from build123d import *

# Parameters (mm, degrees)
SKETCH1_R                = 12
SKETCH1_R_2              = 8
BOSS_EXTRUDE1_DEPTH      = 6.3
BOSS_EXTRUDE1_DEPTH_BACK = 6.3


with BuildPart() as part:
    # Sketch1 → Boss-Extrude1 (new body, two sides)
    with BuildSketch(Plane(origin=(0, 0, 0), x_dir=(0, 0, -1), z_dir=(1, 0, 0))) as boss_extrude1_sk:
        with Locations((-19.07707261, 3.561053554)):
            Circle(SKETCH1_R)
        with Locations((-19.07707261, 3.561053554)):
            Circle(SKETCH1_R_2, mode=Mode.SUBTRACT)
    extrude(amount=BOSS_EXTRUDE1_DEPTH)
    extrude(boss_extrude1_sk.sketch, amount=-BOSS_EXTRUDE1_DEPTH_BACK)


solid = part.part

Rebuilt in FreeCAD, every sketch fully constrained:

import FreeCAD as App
import Part
import Sketcher
from FreeCAD import Vector

doc = App.newDocument("Part")
body = doc.addObject("PartDesign::Body", "Body")

sketch1 = doc.addObject("Sketcher::SketchObject", "Sketch")
body.addObject(sketch1)
sketch1.AttachmentSupport = (doc.YZ_Plane, [""])
sketch1.MapMode = "FlatFace"
sketch1.addGeometry([
    Part.Circle(Vector(4, 19, 0), Vector(0, 0, 1), 12),
    Part.Circle(Vector(4, 19, 0), Vector(0, 0, 1), 8),
], False)
sketch1.addConstraint([
    Sketcher.Constraint("Coincident", 1, 3, 0, 3),
    Sketcher.Constraint("Diameter", 0, 24.0),
    Sketcher.Constraint("Diameter", 1, 16.0),
    Sketcher.Constraint("DistanceX", -1, 1, 0, 3, 3.561054),
    Sketcher.Constraint("DistanceY", -1, 1, 0, 3, 19.077073),
])
pad1 = doc.addObject("PartDesign::Pad", "Pad")
body.addObject(pad1)
pad1.Profile = sketch1
pad1.Type = "TwoLengths"
pad1.Length = 6.3
pad1.Length2 = 6.3

doc.recompute()
